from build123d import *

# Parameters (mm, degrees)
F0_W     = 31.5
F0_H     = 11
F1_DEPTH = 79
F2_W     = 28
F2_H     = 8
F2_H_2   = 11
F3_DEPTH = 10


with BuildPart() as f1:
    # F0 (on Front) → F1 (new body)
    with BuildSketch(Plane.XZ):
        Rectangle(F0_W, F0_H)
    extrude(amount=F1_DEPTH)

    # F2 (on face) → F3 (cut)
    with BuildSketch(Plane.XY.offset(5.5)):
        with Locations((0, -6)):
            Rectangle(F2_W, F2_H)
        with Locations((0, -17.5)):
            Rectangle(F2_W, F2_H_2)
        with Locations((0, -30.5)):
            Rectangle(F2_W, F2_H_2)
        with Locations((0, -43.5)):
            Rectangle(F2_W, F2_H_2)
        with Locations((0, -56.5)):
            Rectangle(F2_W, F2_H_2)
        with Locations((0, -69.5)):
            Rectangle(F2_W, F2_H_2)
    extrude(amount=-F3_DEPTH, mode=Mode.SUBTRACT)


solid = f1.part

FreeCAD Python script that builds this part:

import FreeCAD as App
import Part
import Sketcher
Q = App.Units.Quantity


def add_polygon(sketch, points):
    """Adds a closed chain of lines whose ends are joined by coincident constraints."""
    first, n = sketch.GeometryCount, len(points)
    for a, b in zip(points, points[1:] + points[:1]):
        sketch.addGeometry(Part.LineSegment(App.Vector(*a, 0), App.Vector(*b, 0)), False)
    for i in range(n):
        sketch.addConstraint(Sketcher.Constraint("Coincident", first + i, 2, first + (i + 1) % n, 1))

doc = App.newDocument("Part")
body = doc.addObject("PartDesign::Body", "Body")

# Sketch on XZ plane
sketch1 = body.newObject("Sketcher::SketchObject", "Sketch")
sketch1.AttachmentSupport = (doc.getObject("XZ_Plane"), [""])
sketch1.MapMode = "FlatFace"
add_polygon(sketch1, [(-16, 6), (-16, -6), (16, -6), (16, 6)])  # lines 0-3
sketch1.addConstraint([
    Sketcher.Constraint("Vertical", 0),
    Sketcher.Constraint("Horizontal", 1),
    Sketcher.Constraint("Vertical", 2),
    Sketcher.Constraint("Horizontal", 3),
    Sketcher.Constraint("Symmetric", 0, 2, 2, 2, -1, 1),
    Sketcher.Constraint("DistanceY", 0, 2, 0, 1, Q("11 mm")),
    Sketcher.Constraint("DistanceX", 1, 1, 1, 2, Q("31.5 mm")),
])
pad1 = body.newObject("PartDesign::Pad", "Pad")
pad1.Profile = sketch1
pad1.Length = 79

# Sketch on XY plane
sketch2 = body.newObject("Sketcher::SketchObject", "Sketch001")
sketch2.AttachmentSupport = (doc.getObject("XY_Plane"), [""])
sketch2.MapMode = "FlatFace"
sketch2.AttachmentOffset = App.Placement(App.Vector(0, 0, 5.5), App.Rotation())
add_polygon(sketch2, [(-14, -2), (-14, -10), (14, -10), (14, -2)])  # lines 0-3
add_polygon(sketch2, [(-14, -12), (-14, -23), (14, -23), (14, -12)])  # lines 4-7
add_polygon(sketch2, [(-14, -25), (-14, -36), (14, -36), (14, -25)])  # lines 8-11
add_polygon(sketch2, [(-14, -38), (-14, -49), (14, -49), (14, -38)])  # lines 12-15
add_polygon(sketch2, [(-14, -51), (-14, -62), (14, -62), (14, -51)])  # lines 16-19
add_polygon(sketch2, [(-14, -64), (-14, -75), (14, -75), (14, -64)])  # lines 20-23
sketch2.addConstraint([
    Sketcher.Constraint("Vertical", 0),
    Sketcher.Constraint("Horizontal", 1),
    Sketcher.Constraint("Vertical", 2),
    Sketcher.Constraint("Horizontal", 3),
    Sketcher.Constraint("Vertical", 4),
    Sketcher.Constraint("Horizontal", 5),
    Sketcher.Constraint("Vertical", 6),
    Sketcher.Constraint("Horizontal", 7),
    Sketcher.Constraint("Vertical", 8),
    Sketcher.Constraint("Horizontal", 9),
    Sketcher.Constraint("Vertical", 10),
    Sketcher.Constraint("Horizontal", 11),
    Sketcher.Constraint("Vertical", 12),
    Sketcher.Constraint("Horizontal", 13),
    Sketcher.Constraint("Vertical", 14),
    Sketcher.Constraint("Horizontal", 15),
    Sketcher.Constraint("Vertical", 16),
    Sketcher.Constraint("Horizontal", 17),
    Sketcher.Constraint("Vertical", 18),
    Sketcher.Constraint("Horizontal", 19),
    Sketcher.Constraint("Vertical", 20),
    Sketcher.Constraint("Horizontal", 21),
    Sketcher.Constraint("Vertical", 22),
    Sketcher.Constraint("Horizontal", 23),
    Sketcher.Constraint("Vertical", 3, 2, 4, 2),
    Sketcher.Constraint("Vertical", 2, 2, 5, 2),
    Sketcher.Constraint("Vertical", 7, 2, 8, 2),
    Sketcher.Constraint("Vertical", 6, 2, 9, 2),
    Sketcher.Constraint("Vertical", 11, 2, 12, 2),
    Sketcher.Constraint("Vertical", 10, 2, 13, 2),
    Sketcher.Constraint("Vertical", 15, 2, 16, 2),
    Sketcher.Constraint("Vertical", 14, 2, 17, 2),
    Sketcher.Constraint("Vertical", 19, 2, 20, 2),
    Sketcher.Constraint("Vertical", 18, 2, 21, 2),
    Sketcher.Constraint("Equal", 6, 8),
    Sketcher.Constraint("Equal", 10, 12),
    Sketcher.Constraint("Equal", 14, 16),
    Sketcher.Constraint("Equal", 18, 20),
    Sketcher.Constraint("DistanceX", 1, 1, 1, 2, Q("28 mm")),
    Sketcher.Constraint("DistanceY", 0, 2, 0, 1, Q("8 mm")),
    Sketcher.Constraint("DistanceY", 4, 2, 4, 1, Q("11 mm")),
    Sketcher.Constraint("DistanceX", 0, 2, -1, 1, Q("14 mm")),
    Sketcher.Constraint("DistanceY", 0, 2, -1, 1, Q("10 mm")),
    Sketcher.Constraint("DistanceY", 4, 2, -1, 1, Q("23 mm")),
    Sketcher.Constraint("DistanceY", 8, 2, -1, 1, Q("36 mm")),
    Sketcher.Constraint("DistanceY", 12, 2, -1, 1, Q("49 mm")),
    Sketcher.Constraint("DistanceY", 16, 2, -1, 1, Q("62 mm")),
    Sketcher.Constraint("DistanceY", 20, 2, -1, 1, Q("75 mm")),
])
pocket1 = body.newObject("PartDesign::Pocket", "Pocket")
pocket1.Profile = sketch2
pocket1.Length = 10

doc.recompute()
